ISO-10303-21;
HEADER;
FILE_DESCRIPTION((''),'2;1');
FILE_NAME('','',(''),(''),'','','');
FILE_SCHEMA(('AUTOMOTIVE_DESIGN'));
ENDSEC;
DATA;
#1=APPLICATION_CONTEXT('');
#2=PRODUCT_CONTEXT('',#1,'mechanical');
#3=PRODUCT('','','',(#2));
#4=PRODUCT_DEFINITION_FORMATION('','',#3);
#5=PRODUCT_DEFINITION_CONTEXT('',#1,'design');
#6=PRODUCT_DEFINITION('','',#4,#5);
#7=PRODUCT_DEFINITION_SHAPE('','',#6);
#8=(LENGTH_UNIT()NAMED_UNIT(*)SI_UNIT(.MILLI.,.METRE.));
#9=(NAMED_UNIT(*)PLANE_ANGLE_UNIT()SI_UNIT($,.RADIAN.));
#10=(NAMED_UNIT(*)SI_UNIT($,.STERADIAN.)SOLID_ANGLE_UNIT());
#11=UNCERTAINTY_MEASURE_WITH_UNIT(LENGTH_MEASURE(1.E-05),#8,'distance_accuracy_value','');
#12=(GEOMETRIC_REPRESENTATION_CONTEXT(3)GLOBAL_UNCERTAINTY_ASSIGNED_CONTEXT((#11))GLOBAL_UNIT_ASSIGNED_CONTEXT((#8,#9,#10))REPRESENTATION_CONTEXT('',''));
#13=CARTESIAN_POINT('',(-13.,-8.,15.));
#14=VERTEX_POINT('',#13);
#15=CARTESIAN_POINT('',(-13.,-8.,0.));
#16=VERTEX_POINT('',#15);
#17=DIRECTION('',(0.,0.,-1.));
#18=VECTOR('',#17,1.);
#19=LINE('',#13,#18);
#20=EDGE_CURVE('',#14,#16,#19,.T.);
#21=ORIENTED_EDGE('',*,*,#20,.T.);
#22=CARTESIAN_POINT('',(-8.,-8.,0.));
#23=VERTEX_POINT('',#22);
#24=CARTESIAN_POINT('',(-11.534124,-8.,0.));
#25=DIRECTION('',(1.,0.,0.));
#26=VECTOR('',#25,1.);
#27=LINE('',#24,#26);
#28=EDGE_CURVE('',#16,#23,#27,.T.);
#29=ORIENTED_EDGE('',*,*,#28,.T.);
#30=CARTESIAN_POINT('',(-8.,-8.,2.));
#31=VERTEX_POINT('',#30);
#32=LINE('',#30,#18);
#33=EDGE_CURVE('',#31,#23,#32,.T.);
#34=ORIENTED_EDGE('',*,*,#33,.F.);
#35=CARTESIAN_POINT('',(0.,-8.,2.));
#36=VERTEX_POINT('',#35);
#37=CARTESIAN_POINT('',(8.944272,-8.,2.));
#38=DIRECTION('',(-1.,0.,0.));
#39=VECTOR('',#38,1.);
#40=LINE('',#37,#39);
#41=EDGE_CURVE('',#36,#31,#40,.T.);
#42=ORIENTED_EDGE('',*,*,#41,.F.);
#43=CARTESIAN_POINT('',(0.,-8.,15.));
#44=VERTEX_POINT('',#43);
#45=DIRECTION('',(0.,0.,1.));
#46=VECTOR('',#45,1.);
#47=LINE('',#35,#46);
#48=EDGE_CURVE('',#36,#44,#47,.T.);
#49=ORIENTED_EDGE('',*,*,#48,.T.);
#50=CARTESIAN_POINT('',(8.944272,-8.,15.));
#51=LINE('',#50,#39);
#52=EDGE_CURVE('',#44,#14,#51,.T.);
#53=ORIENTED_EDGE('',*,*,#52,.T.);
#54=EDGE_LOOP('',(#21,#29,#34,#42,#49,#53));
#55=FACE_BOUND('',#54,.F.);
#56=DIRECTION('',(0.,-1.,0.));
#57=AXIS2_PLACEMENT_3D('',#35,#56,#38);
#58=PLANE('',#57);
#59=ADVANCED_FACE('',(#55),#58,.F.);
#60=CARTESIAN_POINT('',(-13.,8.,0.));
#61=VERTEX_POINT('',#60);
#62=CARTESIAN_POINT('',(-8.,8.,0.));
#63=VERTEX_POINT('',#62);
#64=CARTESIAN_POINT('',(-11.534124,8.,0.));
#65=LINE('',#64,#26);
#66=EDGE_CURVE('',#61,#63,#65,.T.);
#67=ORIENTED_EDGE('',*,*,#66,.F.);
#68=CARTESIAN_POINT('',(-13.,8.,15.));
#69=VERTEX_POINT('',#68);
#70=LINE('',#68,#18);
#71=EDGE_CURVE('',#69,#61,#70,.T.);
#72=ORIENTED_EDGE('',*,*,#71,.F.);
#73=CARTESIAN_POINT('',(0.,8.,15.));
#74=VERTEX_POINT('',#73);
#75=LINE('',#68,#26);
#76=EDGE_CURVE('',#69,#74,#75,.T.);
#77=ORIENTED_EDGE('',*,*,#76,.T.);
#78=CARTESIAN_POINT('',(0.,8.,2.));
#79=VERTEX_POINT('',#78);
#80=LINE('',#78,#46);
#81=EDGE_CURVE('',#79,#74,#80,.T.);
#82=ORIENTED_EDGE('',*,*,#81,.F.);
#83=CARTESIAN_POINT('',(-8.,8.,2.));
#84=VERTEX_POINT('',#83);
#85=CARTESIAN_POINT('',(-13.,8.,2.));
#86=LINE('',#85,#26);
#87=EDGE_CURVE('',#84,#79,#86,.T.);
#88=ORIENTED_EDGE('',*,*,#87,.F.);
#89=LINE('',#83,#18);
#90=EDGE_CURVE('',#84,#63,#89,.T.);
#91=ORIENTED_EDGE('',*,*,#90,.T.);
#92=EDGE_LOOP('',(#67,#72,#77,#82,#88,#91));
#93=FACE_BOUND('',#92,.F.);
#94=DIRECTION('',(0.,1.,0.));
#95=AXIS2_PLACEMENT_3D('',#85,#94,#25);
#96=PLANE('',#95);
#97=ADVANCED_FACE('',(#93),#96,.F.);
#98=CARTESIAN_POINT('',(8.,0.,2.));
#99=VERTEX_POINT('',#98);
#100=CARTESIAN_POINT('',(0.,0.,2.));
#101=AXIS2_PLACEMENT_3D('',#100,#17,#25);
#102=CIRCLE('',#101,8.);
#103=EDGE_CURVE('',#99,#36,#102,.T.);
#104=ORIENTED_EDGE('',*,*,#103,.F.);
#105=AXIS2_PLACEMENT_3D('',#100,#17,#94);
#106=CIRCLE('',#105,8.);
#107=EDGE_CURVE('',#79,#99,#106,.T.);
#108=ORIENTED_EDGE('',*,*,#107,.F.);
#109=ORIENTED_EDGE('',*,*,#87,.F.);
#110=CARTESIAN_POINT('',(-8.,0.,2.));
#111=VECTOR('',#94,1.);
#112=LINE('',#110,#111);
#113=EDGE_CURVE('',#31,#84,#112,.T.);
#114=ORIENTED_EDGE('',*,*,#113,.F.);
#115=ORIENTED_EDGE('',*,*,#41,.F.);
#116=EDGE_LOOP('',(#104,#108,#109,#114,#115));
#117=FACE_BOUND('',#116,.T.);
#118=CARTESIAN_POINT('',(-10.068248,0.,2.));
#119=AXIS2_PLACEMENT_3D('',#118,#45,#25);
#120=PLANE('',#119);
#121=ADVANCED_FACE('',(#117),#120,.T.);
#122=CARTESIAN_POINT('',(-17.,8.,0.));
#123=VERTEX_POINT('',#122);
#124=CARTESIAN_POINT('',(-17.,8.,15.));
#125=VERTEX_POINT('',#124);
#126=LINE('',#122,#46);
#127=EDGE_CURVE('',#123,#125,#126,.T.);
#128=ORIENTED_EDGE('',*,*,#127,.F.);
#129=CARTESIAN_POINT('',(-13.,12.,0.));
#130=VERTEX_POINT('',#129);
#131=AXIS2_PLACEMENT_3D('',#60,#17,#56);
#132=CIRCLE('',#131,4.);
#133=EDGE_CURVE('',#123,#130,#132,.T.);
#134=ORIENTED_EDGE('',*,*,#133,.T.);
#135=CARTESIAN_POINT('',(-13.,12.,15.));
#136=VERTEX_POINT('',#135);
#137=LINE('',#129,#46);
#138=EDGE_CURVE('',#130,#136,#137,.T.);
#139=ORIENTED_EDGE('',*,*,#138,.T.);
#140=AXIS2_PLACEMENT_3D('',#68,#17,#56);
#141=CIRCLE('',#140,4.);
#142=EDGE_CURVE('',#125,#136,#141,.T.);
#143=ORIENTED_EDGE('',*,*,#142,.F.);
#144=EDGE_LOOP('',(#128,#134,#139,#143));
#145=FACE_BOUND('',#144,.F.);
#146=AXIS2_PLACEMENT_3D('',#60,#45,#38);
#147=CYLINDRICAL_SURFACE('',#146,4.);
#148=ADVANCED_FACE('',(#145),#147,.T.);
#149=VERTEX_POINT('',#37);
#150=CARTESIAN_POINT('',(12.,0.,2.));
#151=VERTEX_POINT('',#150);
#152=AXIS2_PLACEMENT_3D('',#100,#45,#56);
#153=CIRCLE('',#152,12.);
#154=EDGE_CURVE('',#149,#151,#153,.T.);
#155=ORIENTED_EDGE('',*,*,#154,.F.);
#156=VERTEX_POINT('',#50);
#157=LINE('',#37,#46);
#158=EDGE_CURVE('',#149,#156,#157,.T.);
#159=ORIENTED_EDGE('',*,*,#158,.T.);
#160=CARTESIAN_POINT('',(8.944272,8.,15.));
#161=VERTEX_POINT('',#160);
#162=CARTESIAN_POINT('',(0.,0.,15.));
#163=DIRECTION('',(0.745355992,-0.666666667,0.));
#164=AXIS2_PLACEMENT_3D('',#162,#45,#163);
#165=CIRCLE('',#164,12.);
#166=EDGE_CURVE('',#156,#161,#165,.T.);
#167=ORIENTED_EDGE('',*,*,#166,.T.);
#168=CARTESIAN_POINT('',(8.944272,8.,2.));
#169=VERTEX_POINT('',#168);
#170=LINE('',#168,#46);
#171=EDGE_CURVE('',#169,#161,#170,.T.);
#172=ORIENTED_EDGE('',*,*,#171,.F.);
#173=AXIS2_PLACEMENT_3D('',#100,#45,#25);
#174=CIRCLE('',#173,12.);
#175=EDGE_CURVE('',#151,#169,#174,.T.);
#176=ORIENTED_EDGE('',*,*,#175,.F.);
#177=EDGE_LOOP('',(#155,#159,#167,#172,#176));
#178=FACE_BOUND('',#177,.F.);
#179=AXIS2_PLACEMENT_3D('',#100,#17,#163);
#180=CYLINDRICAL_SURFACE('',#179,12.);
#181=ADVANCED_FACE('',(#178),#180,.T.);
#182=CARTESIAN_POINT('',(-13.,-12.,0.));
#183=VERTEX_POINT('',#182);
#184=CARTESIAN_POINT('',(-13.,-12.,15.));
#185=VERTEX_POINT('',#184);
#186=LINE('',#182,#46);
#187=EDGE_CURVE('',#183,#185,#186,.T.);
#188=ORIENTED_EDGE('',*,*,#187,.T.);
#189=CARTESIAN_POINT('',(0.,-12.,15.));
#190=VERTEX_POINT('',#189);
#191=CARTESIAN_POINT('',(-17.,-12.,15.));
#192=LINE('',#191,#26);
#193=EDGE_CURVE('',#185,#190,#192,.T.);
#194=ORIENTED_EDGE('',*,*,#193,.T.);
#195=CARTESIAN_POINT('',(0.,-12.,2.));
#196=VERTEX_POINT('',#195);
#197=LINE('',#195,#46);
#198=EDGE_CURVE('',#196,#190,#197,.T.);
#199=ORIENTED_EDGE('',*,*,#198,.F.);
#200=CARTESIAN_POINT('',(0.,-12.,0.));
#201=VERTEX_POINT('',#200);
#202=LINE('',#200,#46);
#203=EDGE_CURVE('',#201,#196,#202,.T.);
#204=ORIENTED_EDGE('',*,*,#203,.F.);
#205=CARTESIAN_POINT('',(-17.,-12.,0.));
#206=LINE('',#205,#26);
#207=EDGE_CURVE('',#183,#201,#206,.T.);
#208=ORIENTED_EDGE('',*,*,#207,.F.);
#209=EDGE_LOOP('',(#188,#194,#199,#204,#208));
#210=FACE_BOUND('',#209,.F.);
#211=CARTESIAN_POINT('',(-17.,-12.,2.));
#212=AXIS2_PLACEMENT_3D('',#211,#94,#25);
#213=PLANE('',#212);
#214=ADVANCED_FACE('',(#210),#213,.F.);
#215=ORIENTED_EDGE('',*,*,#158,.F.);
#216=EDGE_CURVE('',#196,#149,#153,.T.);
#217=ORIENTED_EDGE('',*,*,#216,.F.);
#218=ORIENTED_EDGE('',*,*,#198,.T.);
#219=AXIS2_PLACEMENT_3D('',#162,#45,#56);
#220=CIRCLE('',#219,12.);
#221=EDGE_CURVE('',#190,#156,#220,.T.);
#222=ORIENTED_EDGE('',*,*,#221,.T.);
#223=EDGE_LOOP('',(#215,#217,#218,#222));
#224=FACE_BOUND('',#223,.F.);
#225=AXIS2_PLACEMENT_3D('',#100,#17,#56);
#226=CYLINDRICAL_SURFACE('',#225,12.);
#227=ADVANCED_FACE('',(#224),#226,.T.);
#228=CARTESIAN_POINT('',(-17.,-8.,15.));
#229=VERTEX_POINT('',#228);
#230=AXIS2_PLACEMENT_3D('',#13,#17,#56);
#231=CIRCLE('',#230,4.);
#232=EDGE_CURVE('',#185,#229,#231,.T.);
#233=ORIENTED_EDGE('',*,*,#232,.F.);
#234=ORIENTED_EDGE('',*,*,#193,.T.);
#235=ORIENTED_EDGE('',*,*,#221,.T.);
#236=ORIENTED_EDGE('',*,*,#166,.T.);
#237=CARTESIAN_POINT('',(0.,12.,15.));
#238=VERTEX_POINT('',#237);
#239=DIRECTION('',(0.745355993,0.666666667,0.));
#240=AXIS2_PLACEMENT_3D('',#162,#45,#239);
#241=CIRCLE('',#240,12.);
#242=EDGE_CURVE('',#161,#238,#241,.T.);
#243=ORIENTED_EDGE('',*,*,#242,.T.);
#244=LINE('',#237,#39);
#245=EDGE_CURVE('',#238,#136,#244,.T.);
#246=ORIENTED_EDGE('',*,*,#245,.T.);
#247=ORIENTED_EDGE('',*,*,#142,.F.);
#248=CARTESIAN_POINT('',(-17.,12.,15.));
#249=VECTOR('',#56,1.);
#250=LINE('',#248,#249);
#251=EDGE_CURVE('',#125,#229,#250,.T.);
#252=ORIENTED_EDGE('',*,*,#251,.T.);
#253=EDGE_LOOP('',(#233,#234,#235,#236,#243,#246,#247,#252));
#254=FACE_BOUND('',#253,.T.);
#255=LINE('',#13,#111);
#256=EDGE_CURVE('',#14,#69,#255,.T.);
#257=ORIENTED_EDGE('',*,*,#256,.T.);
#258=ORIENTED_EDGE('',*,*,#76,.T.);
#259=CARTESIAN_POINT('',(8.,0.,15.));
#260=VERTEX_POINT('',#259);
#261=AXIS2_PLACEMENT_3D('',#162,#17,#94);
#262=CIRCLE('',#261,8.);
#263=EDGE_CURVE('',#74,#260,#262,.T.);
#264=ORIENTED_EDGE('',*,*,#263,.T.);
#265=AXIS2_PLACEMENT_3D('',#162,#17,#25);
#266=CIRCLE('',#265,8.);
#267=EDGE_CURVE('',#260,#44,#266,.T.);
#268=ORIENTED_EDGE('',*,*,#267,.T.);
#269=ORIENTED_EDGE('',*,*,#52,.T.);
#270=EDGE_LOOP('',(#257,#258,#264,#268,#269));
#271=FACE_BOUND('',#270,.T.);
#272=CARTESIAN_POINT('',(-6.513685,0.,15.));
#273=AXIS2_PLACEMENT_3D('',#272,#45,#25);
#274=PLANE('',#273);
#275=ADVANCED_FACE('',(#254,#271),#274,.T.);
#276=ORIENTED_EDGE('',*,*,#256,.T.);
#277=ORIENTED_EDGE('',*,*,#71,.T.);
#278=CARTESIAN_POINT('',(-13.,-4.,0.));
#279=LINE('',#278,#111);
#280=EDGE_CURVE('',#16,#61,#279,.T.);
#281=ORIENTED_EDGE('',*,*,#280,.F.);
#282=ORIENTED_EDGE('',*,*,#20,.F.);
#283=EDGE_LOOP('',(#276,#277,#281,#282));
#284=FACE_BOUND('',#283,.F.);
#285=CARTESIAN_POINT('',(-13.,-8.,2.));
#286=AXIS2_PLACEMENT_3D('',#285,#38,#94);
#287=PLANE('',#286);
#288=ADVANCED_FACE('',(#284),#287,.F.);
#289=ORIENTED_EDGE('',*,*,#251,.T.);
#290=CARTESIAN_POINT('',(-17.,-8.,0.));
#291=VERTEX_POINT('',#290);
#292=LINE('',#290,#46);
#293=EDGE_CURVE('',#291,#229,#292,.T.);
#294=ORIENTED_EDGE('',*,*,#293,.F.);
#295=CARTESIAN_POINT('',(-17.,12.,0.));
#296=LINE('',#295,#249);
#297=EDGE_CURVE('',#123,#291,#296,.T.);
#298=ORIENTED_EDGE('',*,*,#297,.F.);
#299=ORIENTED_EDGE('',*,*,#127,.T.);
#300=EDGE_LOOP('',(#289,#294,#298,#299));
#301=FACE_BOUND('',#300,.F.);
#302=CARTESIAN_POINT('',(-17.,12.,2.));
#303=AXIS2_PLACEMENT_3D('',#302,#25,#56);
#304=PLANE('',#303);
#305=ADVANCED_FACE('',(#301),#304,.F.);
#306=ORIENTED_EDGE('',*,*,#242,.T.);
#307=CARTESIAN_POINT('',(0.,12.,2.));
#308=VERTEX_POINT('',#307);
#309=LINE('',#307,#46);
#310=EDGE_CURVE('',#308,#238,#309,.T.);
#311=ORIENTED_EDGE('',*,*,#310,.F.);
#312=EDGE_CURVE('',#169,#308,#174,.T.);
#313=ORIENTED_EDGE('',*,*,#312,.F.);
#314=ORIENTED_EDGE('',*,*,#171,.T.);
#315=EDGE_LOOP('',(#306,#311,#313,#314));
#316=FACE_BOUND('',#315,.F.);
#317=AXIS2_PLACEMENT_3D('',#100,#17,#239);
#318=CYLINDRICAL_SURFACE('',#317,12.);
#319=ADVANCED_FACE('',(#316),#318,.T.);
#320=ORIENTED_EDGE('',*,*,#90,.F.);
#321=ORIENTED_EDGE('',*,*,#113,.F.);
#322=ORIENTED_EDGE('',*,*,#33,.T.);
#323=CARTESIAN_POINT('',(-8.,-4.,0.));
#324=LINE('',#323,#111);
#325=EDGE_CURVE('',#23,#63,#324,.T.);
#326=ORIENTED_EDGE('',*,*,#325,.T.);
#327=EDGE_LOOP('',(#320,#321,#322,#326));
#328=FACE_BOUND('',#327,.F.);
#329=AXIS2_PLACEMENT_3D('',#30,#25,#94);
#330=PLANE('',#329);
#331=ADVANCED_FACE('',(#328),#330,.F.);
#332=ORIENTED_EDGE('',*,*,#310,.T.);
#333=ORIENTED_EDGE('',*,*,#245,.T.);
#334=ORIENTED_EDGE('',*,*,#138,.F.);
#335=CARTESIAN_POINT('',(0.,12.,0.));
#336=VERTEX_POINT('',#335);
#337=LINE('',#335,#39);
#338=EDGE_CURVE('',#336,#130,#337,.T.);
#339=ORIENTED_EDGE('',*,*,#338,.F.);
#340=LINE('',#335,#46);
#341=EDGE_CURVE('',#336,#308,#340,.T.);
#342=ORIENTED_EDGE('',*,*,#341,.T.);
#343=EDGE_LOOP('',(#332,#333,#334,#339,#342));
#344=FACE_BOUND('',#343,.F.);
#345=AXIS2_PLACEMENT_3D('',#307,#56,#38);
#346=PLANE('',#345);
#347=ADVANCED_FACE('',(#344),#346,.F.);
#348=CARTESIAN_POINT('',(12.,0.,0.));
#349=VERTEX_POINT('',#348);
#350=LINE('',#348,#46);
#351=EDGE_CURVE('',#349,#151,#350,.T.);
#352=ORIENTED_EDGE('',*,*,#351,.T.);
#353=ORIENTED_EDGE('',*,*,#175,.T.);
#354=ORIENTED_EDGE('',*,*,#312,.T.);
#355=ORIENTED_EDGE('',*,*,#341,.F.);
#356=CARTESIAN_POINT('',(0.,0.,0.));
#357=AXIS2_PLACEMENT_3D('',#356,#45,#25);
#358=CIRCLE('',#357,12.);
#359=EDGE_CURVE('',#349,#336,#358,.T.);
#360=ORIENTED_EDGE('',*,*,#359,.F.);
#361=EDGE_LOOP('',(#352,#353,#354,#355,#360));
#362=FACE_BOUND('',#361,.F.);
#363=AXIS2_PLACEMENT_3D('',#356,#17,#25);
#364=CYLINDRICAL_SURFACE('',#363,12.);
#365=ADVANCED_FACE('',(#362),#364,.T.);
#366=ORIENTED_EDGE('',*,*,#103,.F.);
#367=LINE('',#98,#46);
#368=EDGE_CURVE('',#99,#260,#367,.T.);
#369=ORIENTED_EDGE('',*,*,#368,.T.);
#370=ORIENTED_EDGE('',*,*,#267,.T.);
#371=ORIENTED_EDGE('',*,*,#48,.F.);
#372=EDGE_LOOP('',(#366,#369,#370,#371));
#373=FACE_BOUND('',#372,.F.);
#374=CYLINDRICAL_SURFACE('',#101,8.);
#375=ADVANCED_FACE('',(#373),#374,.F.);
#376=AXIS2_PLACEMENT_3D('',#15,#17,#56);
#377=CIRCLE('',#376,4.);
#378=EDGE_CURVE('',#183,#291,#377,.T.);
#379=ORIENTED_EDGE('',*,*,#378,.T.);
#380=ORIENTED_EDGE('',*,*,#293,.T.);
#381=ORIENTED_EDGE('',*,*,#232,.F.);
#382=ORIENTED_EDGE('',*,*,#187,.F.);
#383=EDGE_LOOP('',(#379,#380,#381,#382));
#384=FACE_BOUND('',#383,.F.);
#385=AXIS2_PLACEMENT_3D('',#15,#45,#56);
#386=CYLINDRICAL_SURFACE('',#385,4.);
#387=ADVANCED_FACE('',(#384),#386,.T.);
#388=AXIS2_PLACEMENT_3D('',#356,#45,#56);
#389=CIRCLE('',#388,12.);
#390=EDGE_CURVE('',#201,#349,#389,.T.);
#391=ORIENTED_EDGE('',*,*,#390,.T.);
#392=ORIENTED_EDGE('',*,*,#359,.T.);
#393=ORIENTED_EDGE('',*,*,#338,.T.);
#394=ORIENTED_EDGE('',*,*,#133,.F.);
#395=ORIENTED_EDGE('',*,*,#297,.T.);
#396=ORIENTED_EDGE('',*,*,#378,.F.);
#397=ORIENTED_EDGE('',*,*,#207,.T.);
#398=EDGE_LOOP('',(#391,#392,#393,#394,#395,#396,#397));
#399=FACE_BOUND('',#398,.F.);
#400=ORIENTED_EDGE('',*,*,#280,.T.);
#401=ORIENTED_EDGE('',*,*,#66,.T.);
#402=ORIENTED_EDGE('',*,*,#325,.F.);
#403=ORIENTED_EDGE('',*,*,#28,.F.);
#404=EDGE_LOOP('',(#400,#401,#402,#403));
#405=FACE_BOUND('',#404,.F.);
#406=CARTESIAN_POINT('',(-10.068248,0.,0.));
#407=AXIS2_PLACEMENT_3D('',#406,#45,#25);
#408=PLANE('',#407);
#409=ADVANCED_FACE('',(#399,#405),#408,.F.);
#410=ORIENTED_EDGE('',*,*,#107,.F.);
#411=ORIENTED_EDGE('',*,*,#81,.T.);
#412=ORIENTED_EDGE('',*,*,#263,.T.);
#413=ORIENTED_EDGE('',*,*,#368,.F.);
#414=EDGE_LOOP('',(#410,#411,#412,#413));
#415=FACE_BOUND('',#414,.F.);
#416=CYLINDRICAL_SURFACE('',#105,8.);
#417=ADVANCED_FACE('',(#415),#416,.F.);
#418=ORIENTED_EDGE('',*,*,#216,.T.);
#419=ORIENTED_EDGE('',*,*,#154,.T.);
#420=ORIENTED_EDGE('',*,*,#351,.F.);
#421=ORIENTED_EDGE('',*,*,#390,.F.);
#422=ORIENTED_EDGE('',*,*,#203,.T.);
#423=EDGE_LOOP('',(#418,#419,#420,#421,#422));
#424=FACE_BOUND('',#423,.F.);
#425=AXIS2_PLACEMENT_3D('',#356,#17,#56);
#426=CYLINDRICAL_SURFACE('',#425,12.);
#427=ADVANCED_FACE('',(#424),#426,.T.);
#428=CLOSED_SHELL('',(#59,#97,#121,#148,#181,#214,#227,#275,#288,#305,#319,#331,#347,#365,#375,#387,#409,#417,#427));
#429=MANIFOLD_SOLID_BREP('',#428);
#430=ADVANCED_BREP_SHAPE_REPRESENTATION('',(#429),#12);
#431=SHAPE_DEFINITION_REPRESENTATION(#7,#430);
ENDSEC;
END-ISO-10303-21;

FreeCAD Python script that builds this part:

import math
import FreeCAD as App
import Part
import Sketcher

V = App.Vector


def edges_at(feature, points):
    """Names of the edges that pass closest to the given points."""
    edges = feature.Shape.Edges
    near = lambda p: min(range(len(edges)), key=lambda i: edges[i].distToShape(Part.Vertex(*p))[0])
    return sorted({f"Edge{near(p) + 1}" for p in points})

doc = App.newDocument("Part")
body = doc.addObject("PartDesign::Body", "Body")

# Sketch on XY plane
sketch1 = body.newObject("Sketcher::SketchObject", "Sketch")
sketch1.AttachmentSupport = (doc.getObject("XY_Plane"), [""])
sketch1.MapMode = "FlatFace"
sketch1.addGeometry([
    Part.LineSegment(V(0, 12, 0), V(-17, 12, 0)),  # 0
    Part.LineSegment(V(-17, 12, 0), V(-17, -12, 0)),  # 1
    Part.LineSegment(V(-17, -12, 0), V(0, -12, 0)),  # 2
    Part.ArcOfCircle(Part.Circle(V(0, 0, 0), V(0, 0, 1), 12), math.radians(-90), math.radians(0)),  # 3
    Part.ArcOfCircle(Part.Circle(V(0, 0, 0), V(0, 0, 1), 12), math.radians(0), math.radians(90)),  # 4
], False)
sketch1.addConstraint([
    Sketcher.Constraint("Coincident", 0, 2, 1, 1),
    Sketcher.Constraint("Coincident", 1, 2, 2, 1),
    Sketcher.Constraint("Tangent", 2, 2, 3, 1),
    Sketcher.Constraint("Tangent", 3, 2, 4, 1),
    Sketcher.Constraint("Tangent", 4, 2, 0, 1),
    Sketcher.Constraint("Horizontal", 0),
    Sketcher.Constraint("Vertical", 1),
    Sketcher.Constraint("Horizontal", 2),
    Sketcher.Constraint("Coincident", 3, 3, -1, 1),
    Sketcher.Constraint("Equal", 3, 4),
    Sketcher.Constraint("PointOnObject", 3, 2, -1),
    Sketcher.Constraint("Radius", 3, 12.0),
    Sketcher.Constraint("DistanceX", 0, 2, 0, 1, 17.0),
])
pad1 = body.newObject("PartDesign::Pad", "Pad")
pad1.Profile = sketch1
pad1.Length = 2

# Sketch on XY plane
sketch2 = body.newObject("Sketcher::SketchObject", "Sketch001")
sketch2.AttachmentSupport = (doc.getObject("XY_Plane"), [""])
sketch2.MapMode = "FlatFace"
sketch2.AttachmentOffset = App.Placement(V(0, 0, 2), App.Rotation())
sketch2.addGeometry([
    Part.ArcOfCircle(Part.Circle(V(0, 0, 0), V(0, 0, 1), 12), math.radians(41.810315), math.radians(90)),  # 0
    Part.LineSegment(V(0, 12, 0), V(-17, 12, 0)),  # 1
    Part.LineSegment(V(-17, 12, 0), V(-17, -12, 0)),  # 2
    Part.LineSegment(V(-17, -12, 0), V(0, -12, 0)),  # 3
    Part.ArcOfCircle(Part.Circle(V(0, 0, 0), V(0, 0, 1), 12), math.radians(-90), math.radians(-41.810315)),  # 4
    Part.ArcOfCircle(Part.Circle(V(0, 0, 0), V(0, 0, 1), 12), math.radians(-41.810315), math.radians(41.810315)),  # 5
    Part.LineSegment(V(-13, 8, 0), V(0, 8, 0)),  # 6
    Part.ArcOfCircle(Part.Circle(V(0, 0, 0), V(0, 0, 1), 8), math.radians(0), math.radians(90)),  # 7
    Part.ArcOfCircle(Part.Circle(V(0, 0, 0), V(0, 0, 1), 8), math.radians(-90), math.radians(0)),  # 8
    Part.LineSegment(V(0, -8, 0), V(-13, -8, 0)),  # 9
    Part.LineSegment(V(-13, -8, 0), V(-13, 8, 0)),  # 10
], False)
sketch2.addConstraint([
    Sketcher.Constraint("Tangent", 0, 2, 1, 1),
    Sketcher.Constraint("Coincident", 1, 2, 2, 1),
    Sketcher.Constraint("Coincident", 2, 2, 3, 1),
    Sketcher.Constraint("Tangent", 3, 2, 4, 1),
    Sketcher.Constraint("Tangent", 4, 2, 5, 1),
    Sketcher.Constraint("Tangent", 5, 2, 0, 1),
    Sketcher.Constraint("Tangent", 6, 2, 7, 2),
    Sketcher.Constraint("Tangent", 7, 1, 8, 2),
    Sketcher.Constraint("Tangent", 8, 1, 9, 1),
    Sketcher.Constraint("Coincident", 9, 2, 10, 1),
    Sketcher.Constraint("Coincident", 10, 2, 6, 1),
    Sketcher.Constraint("Horizontal", 1),
    Sketcher.Constraint("Vertical", 2),
    Sketcher.Constraint("Horizontal", 3),
    Sketcher.Constraint("Horizontal", 6),
    Sketcher.Constraint("Horizontal", 9),
    Sketcher.Constraint("Vertical", 10),
    Sketcher.Constraint("Coincident", 0, 3, -1, 1),
    Sketcher.Constraint("Coincident", 4, 3, -1, 1),
    Sketcher.Constraint("Coincident", 7, 3, -1, 1),
    Sketcher.Constraint("Equal", 7, 8),
    Sketcher.Constraint("PointOnObject", 7, 1, -1),
    Sketcher.Constraint("Horizontal", 5, 2, 6, 2),
    Sketcher.Constraint("Horizontal", 4, 2, 8, 1),
    Sketcher.Constraint("Radius", 0, 12.0),
    Sketcher.Constraint("Radius", 7, 8.0),
    Sketcher.Constraint("DistanceX", 1, 2, 1, 1, 17.0),
    Sketcher.Constraint("DistanceX", 6, 1, 6, 2, 13.0),
])
pad2 = body.newObject("PartDesign::Pad", "Pad001")
pad2.Profile = sketch2
pad2.Length = 13

# Sketch on XY plane
sketch3 = body.newObject("Sketcher::SketchObject", "Sketch002")
sketch3.AttachmentSupport = (doc.getObject("XY_Plane"), [""])
sketch3.MapMode = "FlatFace"
sketch3.AttachmentOffset = App.Placement(V(0, 0, 2), App.Rotation())
sketch3.addGeometry([
    Part.LineSegment(V(-13, 8, 0), V(-13, -8, 0)),
    Part.LineSegment(V(-13, -8, 0), V(-8, -8, 0)),
    Part.LineSegment(V(-8, -8, 0), V(-8, 8, 0)),
    Part.LineSegment(V(-8, 8, 0), V(-13, 8, 0)),
], False)
sketch3.addConstraint([
    Sketcher.Constraint("Coincident", 0, 2, 1, 1),
    Sketcher.Constraint("Coincident", 1, 2, 2, 1),
    Sketcher.Constraint("Coincident", 2, 2, 3, 1),
    Sketcher.Constraint("Coincident", 3, 2, 0, 1),
    Sketcher.Constraint("Vertical", 0),
    Sketcher.Constraint("Horizontal", 1),
    Sketcher.Constraint("Vertical", 2),
    Sketcher.Constraint("Horizontal", 3),
    Sketcher.Constraint("DistanceX", 1, 1, 1, 2, 5.0),
    Sketcher.Constraint("DistanceY", 0, 2, 0, 1, 16.0),
    Sketcher.Constraint("DistanceX", 0, 2, -1, 1, 13.0),
    Sketcher.Constraint("DistanceY", 0, 2, -1, 1, 8.0),
])
pocket1 = body.newObject("PartDesign::Pocket", "Pocket")
pocket1.Profile = sketch3
pocket1.Length = 25
doc.recompute()

fillet = body.newObject("PartDesign::Fillet", "Fillet")
fillet.Base = (pocket1, edges_at(pocket1, [(-17, 12, 7.5), (-17, -12, 7.5)]))
fillet.Radius = 4

doc.recompute()
